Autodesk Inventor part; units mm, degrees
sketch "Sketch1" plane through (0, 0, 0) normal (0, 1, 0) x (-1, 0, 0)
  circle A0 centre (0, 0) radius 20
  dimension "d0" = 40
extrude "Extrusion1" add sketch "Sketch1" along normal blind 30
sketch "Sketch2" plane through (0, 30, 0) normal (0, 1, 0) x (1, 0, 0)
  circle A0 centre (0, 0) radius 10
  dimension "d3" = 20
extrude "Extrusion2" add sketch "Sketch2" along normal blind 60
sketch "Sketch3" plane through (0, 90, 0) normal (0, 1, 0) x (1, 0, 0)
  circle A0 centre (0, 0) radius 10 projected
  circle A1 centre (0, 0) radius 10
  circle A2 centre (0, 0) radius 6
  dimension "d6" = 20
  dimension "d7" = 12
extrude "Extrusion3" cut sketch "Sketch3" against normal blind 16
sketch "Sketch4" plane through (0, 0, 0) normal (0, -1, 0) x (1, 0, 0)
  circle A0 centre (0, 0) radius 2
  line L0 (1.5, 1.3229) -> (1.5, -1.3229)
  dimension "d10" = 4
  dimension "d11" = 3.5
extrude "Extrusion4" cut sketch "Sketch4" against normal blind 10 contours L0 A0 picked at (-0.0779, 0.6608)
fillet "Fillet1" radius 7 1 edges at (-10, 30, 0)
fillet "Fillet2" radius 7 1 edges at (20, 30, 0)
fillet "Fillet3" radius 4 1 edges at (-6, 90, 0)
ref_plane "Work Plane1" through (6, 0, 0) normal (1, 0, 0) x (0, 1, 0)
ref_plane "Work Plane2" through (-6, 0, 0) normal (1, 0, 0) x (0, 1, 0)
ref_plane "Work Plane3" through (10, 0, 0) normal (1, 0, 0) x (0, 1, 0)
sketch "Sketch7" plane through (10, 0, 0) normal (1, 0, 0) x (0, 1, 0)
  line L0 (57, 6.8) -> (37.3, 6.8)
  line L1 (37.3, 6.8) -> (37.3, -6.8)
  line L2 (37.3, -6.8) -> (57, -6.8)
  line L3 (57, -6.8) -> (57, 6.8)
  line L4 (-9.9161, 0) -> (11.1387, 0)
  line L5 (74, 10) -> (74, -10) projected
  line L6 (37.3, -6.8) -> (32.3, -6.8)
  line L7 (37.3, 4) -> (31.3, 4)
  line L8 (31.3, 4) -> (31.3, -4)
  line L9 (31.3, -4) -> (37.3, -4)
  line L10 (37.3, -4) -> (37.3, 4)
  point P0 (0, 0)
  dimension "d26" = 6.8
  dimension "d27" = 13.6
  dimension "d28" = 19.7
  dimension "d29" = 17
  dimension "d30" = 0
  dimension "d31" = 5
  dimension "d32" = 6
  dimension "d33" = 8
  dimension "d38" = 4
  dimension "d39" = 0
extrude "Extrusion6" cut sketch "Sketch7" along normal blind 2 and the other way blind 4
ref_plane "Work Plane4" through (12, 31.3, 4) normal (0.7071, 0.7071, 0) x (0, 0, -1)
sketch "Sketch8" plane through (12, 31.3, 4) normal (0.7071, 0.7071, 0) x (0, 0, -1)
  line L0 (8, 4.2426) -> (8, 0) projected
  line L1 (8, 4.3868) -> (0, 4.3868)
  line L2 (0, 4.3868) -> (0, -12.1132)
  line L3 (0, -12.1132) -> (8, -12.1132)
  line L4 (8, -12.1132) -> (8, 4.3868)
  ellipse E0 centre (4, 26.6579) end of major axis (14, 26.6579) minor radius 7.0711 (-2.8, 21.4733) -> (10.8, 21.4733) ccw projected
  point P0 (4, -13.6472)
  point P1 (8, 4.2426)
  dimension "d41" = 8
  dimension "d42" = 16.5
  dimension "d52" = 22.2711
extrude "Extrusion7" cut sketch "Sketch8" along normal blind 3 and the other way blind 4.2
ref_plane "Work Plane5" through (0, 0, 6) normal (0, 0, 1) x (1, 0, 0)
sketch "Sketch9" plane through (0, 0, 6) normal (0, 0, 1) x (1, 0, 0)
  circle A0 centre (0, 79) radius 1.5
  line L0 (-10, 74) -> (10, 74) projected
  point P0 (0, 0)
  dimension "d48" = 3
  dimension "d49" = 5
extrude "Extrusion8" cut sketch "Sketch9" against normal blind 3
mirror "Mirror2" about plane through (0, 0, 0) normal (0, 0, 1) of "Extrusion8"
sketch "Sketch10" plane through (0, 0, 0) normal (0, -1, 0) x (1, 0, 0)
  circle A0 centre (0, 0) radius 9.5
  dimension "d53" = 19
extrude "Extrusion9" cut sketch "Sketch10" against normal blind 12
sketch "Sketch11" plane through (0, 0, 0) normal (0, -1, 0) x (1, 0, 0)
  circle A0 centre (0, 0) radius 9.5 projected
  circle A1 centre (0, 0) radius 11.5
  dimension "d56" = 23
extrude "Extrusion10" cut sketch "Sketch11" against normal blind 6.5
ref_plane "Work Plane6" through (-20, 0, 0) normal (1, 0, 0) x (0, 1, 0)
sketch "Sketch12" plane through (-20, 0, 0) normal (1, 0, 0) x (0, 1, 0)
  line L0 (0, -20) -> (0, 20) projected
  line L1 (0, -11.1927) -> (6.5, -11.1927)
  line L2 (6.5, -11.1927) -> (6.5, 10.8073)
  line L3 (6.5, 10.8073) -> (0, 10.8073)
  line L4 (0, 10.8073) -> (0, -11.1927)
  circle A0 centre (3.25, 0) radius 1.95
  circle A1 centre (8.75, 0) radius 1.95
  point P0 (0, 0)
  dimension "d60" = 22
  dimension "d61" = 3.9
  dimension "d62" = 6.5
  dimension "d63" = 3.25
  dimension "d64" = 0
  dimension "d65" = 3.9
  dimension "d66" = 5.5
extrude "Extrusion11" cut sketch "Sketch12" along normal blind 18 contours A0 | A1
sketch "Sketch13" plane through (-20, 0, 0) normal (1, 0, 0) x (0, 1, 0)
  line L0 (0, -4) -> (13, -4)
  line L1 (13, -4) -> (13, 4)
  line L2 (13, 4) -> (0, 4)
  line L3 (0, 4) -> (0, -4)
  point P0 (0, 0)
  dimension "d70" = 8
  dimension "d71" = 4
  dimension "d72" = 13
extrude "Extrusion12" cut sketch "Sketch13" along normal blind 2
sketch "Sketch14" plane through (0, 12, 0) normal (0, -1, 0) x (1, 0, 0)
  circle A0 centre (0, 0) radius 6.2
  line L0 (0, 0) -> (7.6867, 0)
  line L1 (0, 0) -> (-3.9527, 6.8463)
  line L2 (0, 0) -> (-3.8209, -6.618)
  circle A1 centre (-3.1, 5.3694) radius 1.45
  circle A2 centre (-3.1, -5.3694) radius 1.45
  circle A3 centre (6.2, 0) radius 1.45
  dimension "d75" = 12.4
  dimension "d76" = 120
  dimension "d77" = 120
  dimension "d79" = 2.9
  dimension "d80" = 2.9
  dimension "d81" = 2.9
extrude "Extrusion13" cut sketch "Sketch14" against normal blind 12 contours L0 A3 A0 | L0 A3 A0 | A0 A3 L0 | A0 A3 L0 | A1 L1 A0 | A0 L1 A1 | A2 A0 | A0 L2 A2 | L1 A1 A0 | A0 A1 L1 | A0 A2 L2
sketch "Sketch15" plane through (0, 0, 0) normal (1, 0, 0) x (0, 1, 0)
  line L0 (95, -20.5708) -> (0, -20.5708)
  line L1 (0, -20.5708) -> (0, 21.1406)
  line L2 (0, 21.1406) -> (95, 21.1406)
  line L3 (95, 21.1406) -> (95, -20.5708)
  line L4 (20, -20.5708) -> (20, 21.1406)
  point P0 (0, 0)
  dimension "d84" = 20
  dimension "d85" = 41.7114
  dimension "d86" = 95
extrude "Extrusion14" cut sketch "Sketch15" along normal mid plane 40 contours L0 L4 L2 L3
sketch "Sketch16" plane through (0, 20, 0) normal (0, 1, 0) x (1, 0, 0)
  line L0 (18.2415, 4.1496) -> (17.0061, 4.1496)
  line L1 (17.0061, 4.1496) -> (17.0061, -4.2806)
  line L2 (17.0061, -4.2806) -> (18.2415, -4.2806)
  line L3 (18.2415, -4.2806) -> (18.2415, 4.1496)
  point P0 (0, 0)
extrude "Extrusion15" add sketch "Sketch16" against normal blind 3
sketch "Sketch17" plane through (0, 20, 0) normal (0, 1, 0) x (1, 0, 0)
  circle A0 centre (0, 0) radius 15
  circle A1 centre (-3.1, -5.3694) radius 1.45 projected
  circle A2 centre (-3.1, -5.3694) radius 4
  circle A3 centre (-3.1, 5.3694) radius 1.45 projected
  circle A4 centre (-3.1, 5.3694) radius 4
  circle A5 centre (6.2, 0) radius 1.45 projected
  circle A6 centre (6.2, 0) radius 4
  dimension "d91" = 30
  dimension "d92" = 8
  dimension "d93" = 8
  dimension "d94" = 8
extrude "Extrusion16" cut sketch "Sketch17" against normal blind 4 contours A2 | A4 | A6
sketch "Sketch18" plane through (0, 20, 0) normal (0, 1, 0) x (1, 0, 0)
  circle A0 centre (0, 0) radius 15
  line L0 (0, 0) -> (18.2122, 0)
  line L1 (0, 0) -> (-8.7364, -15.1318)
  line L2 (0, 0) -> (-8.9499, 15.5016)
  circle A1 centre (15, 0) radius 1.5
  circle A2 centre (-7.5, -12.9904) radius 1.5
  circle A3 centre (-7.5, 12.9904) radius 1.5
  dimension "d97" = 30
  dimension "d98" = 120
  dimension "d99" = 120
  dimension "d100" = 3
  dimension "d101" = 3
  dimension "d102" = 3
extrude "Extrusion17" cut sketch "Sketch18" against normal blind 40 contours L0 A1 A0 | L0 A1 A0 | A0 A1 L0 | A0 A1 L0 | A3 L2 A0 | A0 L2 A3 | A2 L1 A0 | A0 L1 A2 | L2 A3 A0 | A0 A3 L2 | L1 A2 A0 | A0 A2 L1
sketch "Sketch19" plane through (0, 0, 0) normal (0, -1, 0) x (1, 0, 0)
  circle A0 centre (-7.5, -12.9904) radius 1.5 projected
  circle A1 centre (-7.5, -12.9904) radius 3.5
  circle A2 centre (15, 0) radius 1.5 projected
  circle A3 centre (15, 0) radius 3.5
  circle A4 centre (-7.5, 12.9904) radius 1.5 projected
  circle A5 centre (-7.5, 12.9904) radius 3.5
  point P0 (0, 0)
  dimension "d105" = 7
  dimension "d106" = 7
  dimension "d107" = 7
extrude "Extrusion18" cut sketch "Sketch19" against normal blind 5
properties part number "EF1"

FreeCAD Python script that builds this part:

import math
import FreeCAD as App
import Part
import Sketcher


def edges_at(feature, points):
    """Names of the edges that pass closest to the given points."""
    edges = feature.Shape.Edges
    near = lambda p: min(range(len(edges)), key=lambda i: edges[i].distToShape(Part.Vertex(*p))[0])
    return sorted({f"Edge{near(p) + 1}" for p in points})

doc = App.newDocument("Part")
params = doc.addObject("Spreadsheet::Sheet", "Params")
for row, (alias, value) in enumerate([
    ("sketch1_diameter", "40 mm"),
    ("pad1_length", "30 mm"),
    ("sketch2_diameter", "20 mm"),
    ("pad2_length", "60 mm"),
    ("sketch3_diameter", "20 mm"),
    ("sketch3_diameter2", "12 mm"),
    ("pocket1_length", "16 mm"),
    ("sketch4_radius", "2 mm"),
    ("pocket2_length", "10 mm"),
    ("fillet_radius", "7 mm"),
    ("fillet2_radius", "7 mm"),
    ("fillet3_radius", "4 mm"),
    ("sketch5_width", "6 mm"),
    ("sketch5_height", "8 mm"),
    ("sketch5_width2", "19.7 mm"),
    ("sketch5_height2", "13.6 mm"),
    ("pocket3_length", "2 mm"),
    ("pocket3_length2", "4 mm"),
    ("sketch6_width", "8 mm"),
    ("sketch6_height", "16.5 mm"),
    ("pocket4_length", "3 mm"),
    ("pocket4_length2", "4.2 mm"),
    ("sketch7_diameter", "3 mm"),
    ("pocket5_length", "3 mm"),
    ("sketch8_diameter", "19 mm"),
    ("pocket6_length", "12 mm"),
    ("sketch9_diameter", "23 mm"),
    ("sketch9_diameter2", "19 mm"),
    ("pocket7_length", "6.5 mm"),
    ("sketch10_diameter", "3.9 mm"),
    ("pocket8_length", "18 mm"),
    ("sketch11_width", "13 mm"),
    ("sketch11_height", "8 mm"),
    ("pocket9_length", "2 mm"),
    ("sketch12_diameter", "2.9 mm"),
    ("pocket10_length", "12 mm"),
    ("pocket11_length", "40 mm"),
    ("pad3_length", "3 mm"),
    ("sketch15_diameter", "8 mm"),
    ("sketch15_diameter2", "2.9 mm"),
    ("pocket12_length", "4 mm"),
    ("sketch16_diameter", "3 mm"),
    ("pocket13_length", "40 mm"),
    ("sketch17_diameter", "7 mm"),
    ("sketch17_diameter2", "3 mm"),
    ("pocket14_length", "5 mm"),
], start=1):
    params.set(f"A{row}", alias)
    params.set(f"B{row}", "=" + value)
    params.setAlias(f"B{row}", alias)

body = doc.addObject("PartDesign::Body", "Body")

# Sketch on XZ plane
sketch1 = body.newObject("Sketcher::SketchObject", "Sketch")
sketch1.AttachmentSupport = (doc.getObject("XZ_Plane"), [""])
sketch1.MapMode = "FlatFace"
sketch1.addGeometry(Part.Circle(App.Vector(0, 0, 0), App.Vector(0, 0, 1), 20), False)
sketch1.addConstraint([
    Sketcher.Constraint("Coincident", 0, 3, -1, 1),
    Sketcher.Constraint("Diameter", 0, 40.0),
])
sketch1.setExpression("Constraints[1]", "Params.sketch1_diameter")
pad1 = body.newObject("PartDesign::Pad", "Pad")
pad1.Profile = sketch1
pad1.setExpression("Length", "Params.pad1_length")
pad1.Reversed = True

# Sketch on XZ plane
sketch2 = body.newObject("Sketcher::SketchObject", "Sketch001")
sketch2.AttachmentSupport = (doc.getObject("XZ_Plane"), [""])
sketch2.MapMode = "FlatFace"
sketch2.AttachmentOffset = App.Placement(App.Vector(0, 0, -30), App.Rotation())
sketch2.addGeometry(Part.Circle(App.Vector(0, 0, 0), App.Vector(0, 0, 1), 10), False)
sketch2.addConstraint([
    Sketcher.Constraint("Coincident", 0, 3, -1, 1),
    Sketcher.Constraint("Diameter", 0, 20.0),
])
sketch2.setExpression("Constraints[1]", "Params.sketch2_diameter")
pad2 = body.newObject("PartDesign::Pad", "Pad001")
pad2.Profile = sketch2
pad2.setExpression("Length", "Params.pad2_length")
pad2.Reversed = True

# Sketch on XZ plane
sketch3 = body.newObject("Sketcher::SketchObject", "Sketch002")
sketch3.AttachmentSupport = (doc.getObject("XZ_Plane"), [""])
sketch3.MapMode = "FlatFace"
sketch3.AttachmentOffset = App.Placement(App.Vector(0, 0, -90), App.Rotation())
sketch3.addGeometry([
    Part.Circle(App.Vector(0, 0, 0), App.Vector(0, 0, 1), 10),
    Part.Circle(App.Vector(0, 0, 0), App.Vector(0, 0, 1), 6),
], False)
sketch3.addConstraint([
    Sketcher.Constraint("Coincident", 0, 3, -1, 1),
    Sketcher.Constraint("Coincident", 1, 3, -1, 1),
    Sketcher.Constraint("Diameter", 0, 20.0),
    Sketcher.Constraint("Diameter", 1, 12.0),
])
sketch3.setExpression("Constraints[2]", "Params.sketch3_diameter")
sketch3.setExpression("Constraints[3]", "Params.sketch3_diameter2")
pocket1 = body.newObject("PartDesign::Pocket", "Pocket")
pocket1.Profile = sketch3
pocket1.setExpression("Length", "Params.pocket1_length")
pocket1.Reversed = True

# Sketch on XZ plane
sketch4 = body.newObject("Sketcher::SketchObject", "Sketch003")
sketch4.AttachmentSupport = (doc.getObject("XZ_Plane"), [""])
sketch4.MapMode = "FlatFace"
sketch4.addGeometry([
    Part.LineSegment(App.Vector(1.5, -1.3, 0), App.Vector(1.5, 1.3, 0)),
    Part.ArcOfCircle(Part.Circle(App.Vector(0, 0, 0), App.Vector(0, 0, 1), 2), math.radians(41), math.radians(319)),
], False)
sketch4.addConstraint([
    Sketcher.Constraint("Coincident", 0, 1, 1, 2),
    Sketcher.Constraint("Coincident", 1, 1, 0, 2),
    Sketcher.Constraint("Vertical", 0),
    Sketcher.Constraint("Coincident", 1, 3, -1, 1),
    Sketcher.Constraint("Radius", 1, 2.0),
    Sketcher.Constraint("DistanceX", -1, 1, 0, 1, 1.5),
])
sketch4.setExpression("Constraints[4]", "Params.sketch4_radius")
pocket2 = body.newObject("PartDesign::Pocket", "Pocket001")
pocket2.Profile = sketch4
pocket2.setExpression("Length", "Params.pocket2_length")
doc.recompute()

fillet = body.newObject("PartDesign::Fillet", "Fillet")
fillet.Base = (pocket2, edges_at(pocket2, [(-10, 30, 0)]))
fillet.setExpression("Radius", "Params.fillet_radius")
doc.recompute()

fillet2 = body.newObject("PartDesign::Fillet", "Fillet001")
fillet2.Base = (fillet, edges_at(fillet, [(20, 30, 0)]))
fillet2.setExpression("Radius", "Params.fillet2_radius")
doc.recompute()

fillet3 = body.newObject("PartDesign::Fillet", "Fillet002")
fillet3.Base = (fillet2, edges_at(fillet2, [(-6, 90, 0)]))
fillet3.setExpression("Radius", "Params.fillet3_radius")

# Sketch on YZ plane
sketch5 = body.newObject("Sketcher::SketchObject", "Sketch004")
sketch5.AttachmentSupport = (doc.getObject("YZ_Plane"), [""])
sketch5.MapMode = "FlatFace"
sketch5.AttachmentOffset = App.Placement(App.Vector(0, 0, 10), App.Rotation())
sketch5.addGeometry([
    Part.LineSegment(App.Vector(57, -6.8, 0), App.Vector(57, 6.8, 0)),  # 0
    Part.LineSegment(App.Vector(57, 6.8, 0), App.Vector(37.3, 6.8, 0)),  # 1
    Part.LineSegment(App.Vector(37.3, 6.8, 0), App.Vector(37.3, 4, 0)),  # 2
    Part.LineSegment(App.Vector(37.3, 4, 0), App.Vector(31.3, 4, 0)),  # 3
    Part.LineSegment(App.Vector(31.3, 4, 0), App.Vector(31.3, -4, 0)),  # 4
    Part.LineSegment(App.Vector(31.3, -4, 0), App.Vector(37.3, -4, 0)),  # 5
    Part.LineSegment(App.Vector(37.3, -4, 0), App.Vector(37.3, -6.8, 0)),  # 6
    Part.LineSegment(App.Vector(37.3, -6.8, 0), App.Vector(57, -6.8, 0)),  # 7
], False)
sketch5.addConstraint([
    Sketcher.Constraint("Coincident", 0, 2, 1, 1),
    Sketcher.Constraint("Coincident", 1, 2, 2, 1),
    Sketcher.Constraint("Coincident", 2, 2, 3, 1),
    Sketcher.Constraint("Coincident", 3, 2, 4, 1),
    Sketcher.Constraint("Coincident", 4, 2, 5, 1),
    Sketcher.Constraint("Coincident", 5, 2, 6, 1),
    Sketcher.Constraint("Coincident", 6, 2, 7, 1),
    Sketcher.Constraint("Coincident", 7, 2, 0, 1),
    Sketcher.Constraint("Vertical", 0),
    Sketcher.Constraint("Horizontal", 1),
    Sketcher.Constraint("Vertical", 2),
    Sketcher.Constraint("Horizontal", 3),
    Sketcher.Constraint("Vertical", 4),
    Sketcher.Constraint("Horizontal", 5),
    Sketcher.Constraint("Vertical", 6),
    Sketcher.Constraint("Horizontal", 7),
    Sketcher.Constraint("Symmetric", 2, 2, 5, 2, -1),
    Sketcher.Constraint("Equal", 2, 6),
    Sketcher.Constraint("DistanceX", 3, 2, 3, 1, 6.0),
    Sketcher.Constraint("DistanceY", 4, 2, 4, 1, 8.0),
    Sketcher.Constraint("DistanceX", 1, 2, 1, 1, 19.7),
    Sketcher.Constraint("DistanceY", 0, 1, 0, 2, 13.6),
    Sketcher.Constraint("DistanceX", -1, 1, 0, 2, 57.0),
])
sketch5.setExpression("Constraints[18]", "Params.sketch5_width")
sketch5.setExpression("Constraints[19]", "Params.sketch5_height")
sketch5.setExpression("Constraints[20]", "Params.sketch5_width2")
sketch5.setExpression("Constraints[21]", "Params.sketch5_height2")
pocket3 = body.newObject("PartDesign::Pocket", "Pocket002")
pocket3.Profile = sketch5
pocket3.Type = "TwoLengths"
pocket3.setExpression("Length", "Params.pocket3_length")
pocket3.setExpression("Length2", "Params.pocket3_length2")
pocket3.Reversed = True

# Sketch on an angled plane
sketch6 = body.newObject("Sketcher::SketchObject", "Sketch005")
sketch6.Placement = App.Placement(App.Vector(12, 31.3, 4), App.Rotation(App.Vector(0, 0, -1), App.Vector(-0.707106781, 0.707106781, 0), App.Vector(0.707106781, 0.707106781, 0), "ZXY"))
sketch6.addGeometry([
    Part.LineSegment(App.Vector(8, -12, 0), App.Vector(8, 4, 0)),
    Part.LineSegment(App.Vector(8, 4, 0), App.Vector(0, 4, 0)),
    Part.LineSegment(App.Vector(0, 4, 0), App.Vector(0, -12, 0)),
    Part.LineSegment(App.Vector(0, -12, 0), App.Vector(8, -12, 0)),
], False)
sketch6.addConstraint([
    Sketcher.Constraint("Coincident", 0, 2, 1, 1),
    Sketcher.Constraint("Coincident", 1, 2, 2, 1),
    Sketcher.Constraint("Coincident", 2, 2, 3, 1),
    Sketcher.Constraint("Coincident", 3, 2, 0, 1),
    Sketcher.Constraint("Vertical", 0),
    Sketcher.Constraint("Horizontal", 1),
    Sketcher.Constraint("Vertical", 2),
    Sketcher.Constraint("Horizontal", 3),
    Sketcher.Constraint("PointOnObject", 1, 2, -2),
    Sketcher.Constraint("DistanceX", 1, 2, 1, 1, 8.0),
    Sketcher.Constraint("DistanceY", 0, 1, 0, 2, 16.5),
    Sketcher.Constraint("DistanceY", -1, 1, 0, 2, 4.3868),
])
sketch6.setExpression("Constraints[9]", "Params.sketch6_width")
sketch6.setExpression("Constraints[10]", "Params.sketch6_height")
pocket4 = body.newObject("PartDesign::Pocket", "Pocket003")
pocket4.Profile = sketch6
pocket4.Type = "TwoLengths"
pocket4.setExpression("Length", "Params.pocket4_length")
pocket4.setExpression("Length2", "Params.pocket4_length2")
pocket4.Reversed = True

# Sketch on XY plane
sketch7 = body.newObject("Sketcher::SketchObject", "Sketch006")
sketch7.AttachmentSupport = (doc.getObject("XY_Plane"), [""])
sketch7.MapMode = "FlatFace"
sketch7.AttachmentOffset = App.Placement(App.Vector(0, 0, 6), App.Rotation())
sketch7.addGeometry(Part.Circle(App.Vector(0, 79, 0), App.Vector(0, 0, 1), 1.5), False)
sketch7.addConstraint([
    Sketcher.Constraint("PointOnObject", 0, 3, -2),
    Sketcher.Constraint("Diameter", 0, 3.0),
    Sketcher.Constraint("DistanceY", -1, 1, 0, 3, 79.0),
])
sketch7.setExpression("Constraints[1]", "Params.sketch7_diameter")
pocket5 = body.newObject("PartDesign::Pocket", "Pocket004")
pocket5.Profile = sketch7
pocket5.setExpression("Length", "Params.pocket5_length")
doc.recompute()

mirrored = body.newObject("PartDesign::Mirrored", "Mirrored")
mirrored.Originals = [pocket5]
mirrored.MirrorPlane = (doc.getObject("XY_Plane"), [""])
body.Tip = mirrored

# Sketch on XZ plane
sketch8 = body.newObject("Sketcher::SketchObject", "Sketch007")
sketch8.AttachmentSupport = (doc.getObject("XZ_Plane"), [""])
sketch8.MapMode = "FlatFace"
sketch8.addGeometry(Part.Circle(App.Vector(0, 0, 0), App.Vector(0, 0, 1), 10), False)
sketch8.addConstraint([
    Sketcher.Constraint("Coincident", 0, 3, -1, 1),
    Sketcher.Constraint("Diameter", 0, 19.0),
])
sketch8.setExpression("Constraints[1]", "Params.sketch8_diameter")
pocket6 = body.newObject("PartDesign::Pocket", "Pocket005")
pocket6.Profile = sketch8
pocket6.setExpression("Length", "Params.pocket6_length")

# Sketch on XZ plane
sketch9 = body.newObject("Sketcher::SketchObject", "Sketch008")
sketch9.AttachmentSupport = (doc.getObject("XZ_Plane"), [""])
sketch9.MapMode = "FlatFace"
sketch9.addGeometry([
    Part.Circle(App.Vector(0, 0, 0), App.Vector(0, 0, 1), 12),
    Part.Circle(App.Vector(0, 0, 0), App.Vector(0, 0, 1), 10),
], False)
sketch9.addConstraint([
    Sketcher.Constraint("Coincident", 0, 3, -1, 1),
    Sketcher.Constraint("Coincident", 1, 3, -1, 1),
    Sketcher.Constraint("Diameter", 0, 23.0),
    Sketcher.Constraint("Diameter", 1, 19.0),
])
sketch9.setExpression("Constraints[2]", "Params.sketch9_diameter")
sketch9.setExpression("Constraints[3]", "Params.sketch9_diameter2")
pocket7 = body.newObject("PartDesign::Pocket", "Pocket006")
pocket7.Profile = sketch9
pocket7.setExpression("Length", "Params.pocket7_length")

# Sketch on YZ plane
sketch10 = body.newObject("Sketcher::SketchObject", "Sketch009")
sketch10.AttachmentSupport = (doc.getObject("YZ_Plane"), [""])
sketch10.MapMode = "FlatFace"
sketch10.AttachmentOffset = App.Placement(App.Vector(0, 0, -20), App.Rotation())
sketch10.addGeometry([
    Part.Circle(App.Vector(3.2, 0, 0), App.Vector(0, 0, 1), 1.9),
    Part.Circle(App.Vector(8.8, 0, 0), App.Vector(0, 0, 1), 1.9),
], False)
sketch10.addConstraint([
    Sketcher.Constraint("Equal", 0, 1),
    Sketcher.Constraint("PointOnObject", 0, 3, -1),
    Sketcher.Constraint("PointOnObject", 1, 3, -1),
    Sketcher.Constraint("Diameter", 0, 3.9),
    Sketcher.Constraint("DistanceX", 0, 3, 1, 3, 5.5),
    Sketcher.Constraint("DistanceX", -1, 1, 0, 3, 3.25),
])
sketch10.setExpression("Constraints[3]", "Params.sketch10_diameter")
pocket8 = body.newObject("PartDesign::Pocket", "Pocket007")
pocket8.Profile = sketch10
pocket8.setExpression("Length", "Params.pocket8_length")
pocket8.Reversed = True

# Sketch on YZ plane
sketch11 = body.newObject("Sketcher::SketchObject", "Sketch010")
sketch11.AttachmentSupport = (doc.getObject("YZ_Plane"), [""])
sketch11.MapMode = "FlatFace"
sketch11.AttachmentOffset = App.Placement(App.Vector(0, 0, -20), App.Rotation())
sketch11.addGeometry([
    Part.LineSegment(App.Vector(0, 4, 0), App.Vector(0, -4, 0)),
    Part.LineSegment(App.Vector(0, -4, 0), App.Vector(13, -4, 0)),
    Part.LineSegment(App.Vector(13, -4, 0), App.Vector(13, 4, 0)),
    Part.LineSegment(App.Vector(13, 4, 0), App.Vector(0, 4, 0)),
], False)
sketch11.addConstraint([
    Sketcher.Constraint("Coincident", 0, 2, 1, 1),
    Sketcher.Constraint("Coincident", 1, 2, 2, 1),
    Sketcher.Constraint("Coincident", 2, 2, 3, 1),
    Sketcher.Constraint("Coincident", 3, 2, 0, 1),
    Sketcher.Constraint("Vertical", 0),
    Sketcher.Constraint("Horizontal", 1),
    Sketcher.Constraint("Vertical", 2),
    Sketcher.Constraint("Horizontal", 3),
    Sketcher.Constraint("Symmetric", 0, 2, 3, 2, -1, 1),
    Sketcher.Constraint("DistanceX", 1, 1, 1, 2, 13.0),
    Sketcher.Constraint("DistanceY", 0, 2, 0, 1, 8.0),
])
sketch11.setExpression("Constraints[9]", "Params.sketch11_width")
sketch11.setExpression("Constraints[10]", "Params.sketch11_height")
pocket9 = body.newObject("PartDesign::Pocket", "Pocket008")
pocket9.Profile = sketch11
pocket9.setExpression("Length", "Params.pocket9_length")
pocket9.Reversed = True

# Sketch on XZ plane
sketch12 = body.newObject("Sketcher::SketchObject", "Sketch011")
sketch12.AttachmentSupport = (doc.getObject("XZ_Plane"), [""])
sketch12.MapMode = "FlatFace"
sketch12.AttachmentOffset = App.Placement(App.Vector(0, 0, -12), App.Rotation())
sketch12.addGeometry([
    Part.Circle(App.Vector(6.2, 0, 0), App.Vector(0, 0, 1), 1.4),
    Part.Circle(App.Vector(-3.1, 5.4, 0), App.Vector(0, 0, 1), 1.4),
    Part.Circle(App.Vector(-3.1, -5.4, 0), App.Vector(0, 0, 1), 1.4),
], False)
sketch12.addConstraint([
    Sketcher.Constraint("Equal", 0, 1),
    Sketcher.Constraint("Equal", 1, 2),
    Sketcher.Constraint("Symmetric", 1, 3, 2, 3, -1),
    Sketcher.Constraint("PointOnObject", 0, 3, -1),
    Sketcher.Constraint("Diameter", 0, 2.9),
    Sketcher.Constraint("DistanceX", -1, 1, 0, 3, 6.2),
    Sketcher.Constraint("DistanceX", 1, 3, -1, 1, 3.1),
    Sketcher.Constraint("DistanceY", -1, 1, 1, 3, 5.3694),
])
sketch12.setExpression("Constraints[4]", "Params.sketch12_diameter")
pocket10 = body.newObject("PartDesign::Pocket", "Pocket009")
pocket10.Profile = sketch12
pocket10.setExpression("Length", "Params.pocket10_length")

# Sketch on YZ plane
sketch13 = body.newObject("Sketcher::SketchObject", "Sketch012")
sketch13.AttachmentSupport = (doc.getObject("YZ_Plane"), [""])
sketch13.MapMode = "FlatFace"
sketch13.addGeometry([
    Part.LineSegment(App.Vector(20, -21, 0), App.Vector(95, -21, 0)),
    Part.LineSegment(App.Vector(95, -21, 0), App.Vector(95, 21, 0)),
    Part.LineSegment(App.Vector(95, 21, 0), App.Vector(20, 21, 0)),
    Part.LineSegment(App.Vector(20, 21, 0), App.Vector(20, -21, 0)),
], False)
sketch13.addConstraint([
    Sketcher.Constraint("Coincident", 0, 2, 1, 1),
    Sketcher.Constraint("Coincident", 1, 2, 2, 1),
    Sketcher.Constraint("Coincident", 2, 2, 3, 1),
    Sketcher.Constraint("Coincident", 3, 2, 0, 1),
    Sketcher.Constraint("Horizontal", 0),
    Sketcher.Constraint("Vertical", 1),
    Sketcher.Constraint("Horizontal", 2),
    Sketcher.Constraint("Vertical", 3),
    Sketcher.Constraint("DistanceX", -1, 1, 0, 2, 95.0),
    Sketcher.Constraint("DistanceX", -1, 1, 2, 2, 20.0),
    Sketcher.Constraint("DistanceY", 1, 1, 1, 2, 41.7114),
    Sketcher.Constraint("DistanceY", 0, 2, -1, 1, 20.5708),
])
pocket11 = body.newObject("PartDesign::Pocket", "Pocket010")
pocket11.Profile = sketch13
pocket11.setExpression("Length", "Params.pocket11_length")
pocket11.Midplane = True

# Sketch on XZ plane
sketch14 = body.newObject("Sketcher::SketchObject", "Sketch013")
sketch14.AttachmentSupport = (doc.getObject("XZ_Plane"), [""])
sketch14.MapMode = "FlatFace"
sketch14.AttachmentOffset = App.Placement(App.Vector(0, 0, -20), App.Rotation())
sketch14.addGeometry([
    Part.LineSegment(App.Vector(18.2, 4.3, 0), App.Vector(18.2, -4.1, 0)),
    Part.LineSegment(App.Vector(18.2, -4.1, 0), App.Vector(17, -4.1, 0)),
    Part.LineSegment(App.Vector(17, -4.1, 0), App.Vector(17, 4.3, 0)),
    Part.LineSegment(App.Vector(17, 4.3, 0), App.Vector(18.2, 4.3, 0)),
], False)
sketch14.addConstraint([
    Sketcher.Constraint("Coincident", 0, 2, 1, 1),
    Sketcher.Constraint("Coincident", 1, 2, 2, 1),
    Sketcher.Constraint("Coincident", 2, 2, 3, 1),
    Sketcher.Constraint("Coincident", 3, 2, 0, 1),
    Sketcher.Constraint("Vertical", 0),
    Sketcher.Constraint("Horizontal", 1),
    Sketcher.Constraint("Vertical", 2),
    Sketcher.Constraint("Horizontal", 3),
    Sketcher.Constraint("DistanceX", 1, 2, 1, 1, 1.2354),
    Sketcher.Constraint("DistanceY", 0, 2, 0, 1, 8.4302),
    Sketcher.Constraint("DistanceX", -1, 1, 1, 2, 17.006),
    Sketcher.Constraint("DistanceY", 0, 2, -1, 1, 4.1496),
])
pad3 = body.newObject("PartDesign::Pad", "Pad002")
pad3.Profile = sketch14
pad3.setExpression("Length", "Params.pad3_length")

# Sketch on XZ plane
sketch15 = body.newObject("Sketcher::SketchObject", "Sketch014")
sketch15.AttachmentSupport = (doc.getObject("XZ_Plane"), [""])
sketch15.MapMode = "FlatFace"
sketch15.AttachmentOffset = App.Placement(App.Vector(0, 0, -20), App.Rotation())
sketch15.addGeometry([
    Part.Circle(App.Vector(-3.1, 5.4, 0), App.Vector(0, 0, 1), 4),  # 0
    Part.Circle(App.Vector(-3.1, 5.4, 0), App.Vector(0, 0, 1), 1.4),  # 1
    Part.Circle(App.Vector(-3.1, -5.4, 0), App.Vector(0, 0, 1), 4),  # 2
    Part.Circle(App.Vector(-3.1, -5.4, 0), App.Vector(0, 0, 1), 1.4),  # 3
    Part.Circle(App.Vector(6.2, 0, 0), App.Vector(0, 0, 1), 4),  # 4
    Part.Circle(App.Vector(6.2, 0, 0), App.Vector(0, 0, 1), 1.4),  # 5
], False)
sketch15.addConstraint([
    Sketcher.Constraint("Coincident", 1, 3, 0, 3),
    Sketcher.Constraint("Coincident", 3, 3, 2, 3),
    Sketcher.Constraint("Coincident", 5, 3, 4, 3),
    Sketcher.Constraint("Equal", 0, 2),
    Sketcher.Constraint("Equal", 1, 3),
    Sketcher.Constraint("Equal", 2, 4),
    Sketcher.Constraint("Equal", 3, 5),
    Sketcher.Constraint("Symmetric", 0, 3, 2, 3, -1),
    Sketcher.Constraint("PointOnObject", 4, 3, -1),
    Sketcher.Constraint("Diameter", 0, 8.0),
    Sketcher.Constraint("Diameter", 1, 2.9),
    Sketcher.Constraint("DistanceX", 0, 3, -1, 1, 3.1),
    Sketcher.Constraint("DistanceX", -1, 1, 4, 3, 6.2),
    Sketcher.Constraint("DistanceY", -1, 1, 0, 3, 5.3694),
])
sketch15.setExpression("Constraints[9]", "Params.sketch15_diameter")
sketch15.setExpression("Constraints[10]", "Params.sketch15_diameter2")
pocket12 = body.newObject("PartDesign::Pocket", "Pocket011")
pocket12.Profile = sketch15
pocket12.setExpression("Length", "Params.pocket12_length")
pocket12.Reversed = True

# Sketch on XZ plane
sketch16 = body.newObject("Sketcher::SketchObject", "Sketch015")
sketch16.AttachmentSupport = (doc.getObject("XZ_Plane"), [""])
sketch16.MapMode = "FlatFace"
sketch16.AttachmentOffset = App.Placement(App.Vector(0, 0, -20), App.Rotation())
sketch16.addGeometry([
    Part.Circle(App.Vector(15, 0, 0), App.Vector(0, 0, 1), 1.5),
    Part.Circle(App.Vector(-7.5, -13, 0), App.Vector(0, 0, 1), 1.5),
    Part.Circle(App.Vector(-7.5, 13, 0), App.Vector(0, 0, 1), 1.5),
], False)
sketch16.addConstraint([
    Sketcher.Constraint("Equal", 0, 1),
    Sketcher.Constraint("Equal", 1, 2),
    Sketcher.Constraint("Symmetric", 1, 3, 2, 3, -1),
    Sketcher.Constraint("PointOnObject", 0, 3, -1),
    Sketcher.Constraint("Diameter", 0, 3.0),
    Sketcher.Constraint("DistanceX", -1, 1, 0, 3, 15.0),
    Sketcher.Constraint("DistanceX", 1, 3, -1, 1, 7.5),
    Sketcher.Constraint("DistanceY", 1, 3, -1, 1, 12.9904),
])
sketch16.setExpression("Constraints[4]", "Params.sketch16_diameter")
pocket13 = body.newObject("PartDesign::Pocket", "Pocket012")
pocket13.Profile = sketch16
pocket13.setExpression("Length", "Params.pocket13_length")
pocket13.Reversed = True

# Sketch on XZ plane
sketch17 = body.newObject("Sketcher::SketchObject", "Sketch016")
sketch17.AttachmentSupport = (doc.getObject("XZ_Plane"), [""])
sketch17.MapMode = "FlatFace"
sketch17.addGeometry([
    Part.Circle(App.Vector(-7.5, -13, 0), App.Vector(0, 0, 1), 3.5),  # 0
    Part.Circle(App.Vector(-7.5, -13, 0), App.Vector(0, 0, 1), 1.5),  # 1
    Part.Circle(App.Vector(15, 0, 0), App.Vector(0, 0, 1), 3.5),  # 2
    Part.Circle(App.Vector(15, 0, 0), App.Vector(0, 0, 1), 1.5),  # 3
    Part.Circle(App.Vector(-7.5, 13, 0), App.Vector(0, 0, 1), 3.5),  # 4
    Part.Circle(App.Vector(-7.5, 13, 0), App.Vector(0, 0, 1), 1.5),  # 5
], False)
sketch17.addConstraint([
    Sketcher.Constraint("Coincident", 1, 3, 0, 3),
    Sketcher.Constraint("Coincident", 3, 3, 2, 3),
    Sketcher.Constraint("Coincident", 5, 3, 4, 3),
    Sketcher.Constraint("Equal", 0, 2),
    Sketcher.Constraint("Equal", 1, 3),
    Sketcher.Constraint("Equal", 2, 4),
    Sketcher.Constraint("Equal", 3, 5),
    Sketcher.Constraint("Symmetric", 0, 3, 4, 3, -1),
    Sketcher.Constraint("PointOnObject", 2, 3, -1),
    Sketcher.Constraint("Diameter", 0, 7.0),
    Sketcher.Constraint("Diameter", 1, 3.0),
    Sketcher.Constraint("DistanceX", -1, 1, 2, 3, 15.0),
    Sketcher.Constraint("DistanceX", 0, 3, -1, 1, 7.5),
    Sketcher.Constraint("DistanceY", 0, 3, -1, 1, 12.9904),
])
sketch17.setExpression("Constraints[9]", "Params.sketch17_diameter")
sketch17.setExpression("Constraints[10]", "Params.sketch17_diameter2")
pocket14 = body.newObject("PartDesign::Pocket", "Pocket013")
pocket14.Profile = sketch17
pocket14.setExpression("Length", "Params.pocket14_length")

doc.recompute()
